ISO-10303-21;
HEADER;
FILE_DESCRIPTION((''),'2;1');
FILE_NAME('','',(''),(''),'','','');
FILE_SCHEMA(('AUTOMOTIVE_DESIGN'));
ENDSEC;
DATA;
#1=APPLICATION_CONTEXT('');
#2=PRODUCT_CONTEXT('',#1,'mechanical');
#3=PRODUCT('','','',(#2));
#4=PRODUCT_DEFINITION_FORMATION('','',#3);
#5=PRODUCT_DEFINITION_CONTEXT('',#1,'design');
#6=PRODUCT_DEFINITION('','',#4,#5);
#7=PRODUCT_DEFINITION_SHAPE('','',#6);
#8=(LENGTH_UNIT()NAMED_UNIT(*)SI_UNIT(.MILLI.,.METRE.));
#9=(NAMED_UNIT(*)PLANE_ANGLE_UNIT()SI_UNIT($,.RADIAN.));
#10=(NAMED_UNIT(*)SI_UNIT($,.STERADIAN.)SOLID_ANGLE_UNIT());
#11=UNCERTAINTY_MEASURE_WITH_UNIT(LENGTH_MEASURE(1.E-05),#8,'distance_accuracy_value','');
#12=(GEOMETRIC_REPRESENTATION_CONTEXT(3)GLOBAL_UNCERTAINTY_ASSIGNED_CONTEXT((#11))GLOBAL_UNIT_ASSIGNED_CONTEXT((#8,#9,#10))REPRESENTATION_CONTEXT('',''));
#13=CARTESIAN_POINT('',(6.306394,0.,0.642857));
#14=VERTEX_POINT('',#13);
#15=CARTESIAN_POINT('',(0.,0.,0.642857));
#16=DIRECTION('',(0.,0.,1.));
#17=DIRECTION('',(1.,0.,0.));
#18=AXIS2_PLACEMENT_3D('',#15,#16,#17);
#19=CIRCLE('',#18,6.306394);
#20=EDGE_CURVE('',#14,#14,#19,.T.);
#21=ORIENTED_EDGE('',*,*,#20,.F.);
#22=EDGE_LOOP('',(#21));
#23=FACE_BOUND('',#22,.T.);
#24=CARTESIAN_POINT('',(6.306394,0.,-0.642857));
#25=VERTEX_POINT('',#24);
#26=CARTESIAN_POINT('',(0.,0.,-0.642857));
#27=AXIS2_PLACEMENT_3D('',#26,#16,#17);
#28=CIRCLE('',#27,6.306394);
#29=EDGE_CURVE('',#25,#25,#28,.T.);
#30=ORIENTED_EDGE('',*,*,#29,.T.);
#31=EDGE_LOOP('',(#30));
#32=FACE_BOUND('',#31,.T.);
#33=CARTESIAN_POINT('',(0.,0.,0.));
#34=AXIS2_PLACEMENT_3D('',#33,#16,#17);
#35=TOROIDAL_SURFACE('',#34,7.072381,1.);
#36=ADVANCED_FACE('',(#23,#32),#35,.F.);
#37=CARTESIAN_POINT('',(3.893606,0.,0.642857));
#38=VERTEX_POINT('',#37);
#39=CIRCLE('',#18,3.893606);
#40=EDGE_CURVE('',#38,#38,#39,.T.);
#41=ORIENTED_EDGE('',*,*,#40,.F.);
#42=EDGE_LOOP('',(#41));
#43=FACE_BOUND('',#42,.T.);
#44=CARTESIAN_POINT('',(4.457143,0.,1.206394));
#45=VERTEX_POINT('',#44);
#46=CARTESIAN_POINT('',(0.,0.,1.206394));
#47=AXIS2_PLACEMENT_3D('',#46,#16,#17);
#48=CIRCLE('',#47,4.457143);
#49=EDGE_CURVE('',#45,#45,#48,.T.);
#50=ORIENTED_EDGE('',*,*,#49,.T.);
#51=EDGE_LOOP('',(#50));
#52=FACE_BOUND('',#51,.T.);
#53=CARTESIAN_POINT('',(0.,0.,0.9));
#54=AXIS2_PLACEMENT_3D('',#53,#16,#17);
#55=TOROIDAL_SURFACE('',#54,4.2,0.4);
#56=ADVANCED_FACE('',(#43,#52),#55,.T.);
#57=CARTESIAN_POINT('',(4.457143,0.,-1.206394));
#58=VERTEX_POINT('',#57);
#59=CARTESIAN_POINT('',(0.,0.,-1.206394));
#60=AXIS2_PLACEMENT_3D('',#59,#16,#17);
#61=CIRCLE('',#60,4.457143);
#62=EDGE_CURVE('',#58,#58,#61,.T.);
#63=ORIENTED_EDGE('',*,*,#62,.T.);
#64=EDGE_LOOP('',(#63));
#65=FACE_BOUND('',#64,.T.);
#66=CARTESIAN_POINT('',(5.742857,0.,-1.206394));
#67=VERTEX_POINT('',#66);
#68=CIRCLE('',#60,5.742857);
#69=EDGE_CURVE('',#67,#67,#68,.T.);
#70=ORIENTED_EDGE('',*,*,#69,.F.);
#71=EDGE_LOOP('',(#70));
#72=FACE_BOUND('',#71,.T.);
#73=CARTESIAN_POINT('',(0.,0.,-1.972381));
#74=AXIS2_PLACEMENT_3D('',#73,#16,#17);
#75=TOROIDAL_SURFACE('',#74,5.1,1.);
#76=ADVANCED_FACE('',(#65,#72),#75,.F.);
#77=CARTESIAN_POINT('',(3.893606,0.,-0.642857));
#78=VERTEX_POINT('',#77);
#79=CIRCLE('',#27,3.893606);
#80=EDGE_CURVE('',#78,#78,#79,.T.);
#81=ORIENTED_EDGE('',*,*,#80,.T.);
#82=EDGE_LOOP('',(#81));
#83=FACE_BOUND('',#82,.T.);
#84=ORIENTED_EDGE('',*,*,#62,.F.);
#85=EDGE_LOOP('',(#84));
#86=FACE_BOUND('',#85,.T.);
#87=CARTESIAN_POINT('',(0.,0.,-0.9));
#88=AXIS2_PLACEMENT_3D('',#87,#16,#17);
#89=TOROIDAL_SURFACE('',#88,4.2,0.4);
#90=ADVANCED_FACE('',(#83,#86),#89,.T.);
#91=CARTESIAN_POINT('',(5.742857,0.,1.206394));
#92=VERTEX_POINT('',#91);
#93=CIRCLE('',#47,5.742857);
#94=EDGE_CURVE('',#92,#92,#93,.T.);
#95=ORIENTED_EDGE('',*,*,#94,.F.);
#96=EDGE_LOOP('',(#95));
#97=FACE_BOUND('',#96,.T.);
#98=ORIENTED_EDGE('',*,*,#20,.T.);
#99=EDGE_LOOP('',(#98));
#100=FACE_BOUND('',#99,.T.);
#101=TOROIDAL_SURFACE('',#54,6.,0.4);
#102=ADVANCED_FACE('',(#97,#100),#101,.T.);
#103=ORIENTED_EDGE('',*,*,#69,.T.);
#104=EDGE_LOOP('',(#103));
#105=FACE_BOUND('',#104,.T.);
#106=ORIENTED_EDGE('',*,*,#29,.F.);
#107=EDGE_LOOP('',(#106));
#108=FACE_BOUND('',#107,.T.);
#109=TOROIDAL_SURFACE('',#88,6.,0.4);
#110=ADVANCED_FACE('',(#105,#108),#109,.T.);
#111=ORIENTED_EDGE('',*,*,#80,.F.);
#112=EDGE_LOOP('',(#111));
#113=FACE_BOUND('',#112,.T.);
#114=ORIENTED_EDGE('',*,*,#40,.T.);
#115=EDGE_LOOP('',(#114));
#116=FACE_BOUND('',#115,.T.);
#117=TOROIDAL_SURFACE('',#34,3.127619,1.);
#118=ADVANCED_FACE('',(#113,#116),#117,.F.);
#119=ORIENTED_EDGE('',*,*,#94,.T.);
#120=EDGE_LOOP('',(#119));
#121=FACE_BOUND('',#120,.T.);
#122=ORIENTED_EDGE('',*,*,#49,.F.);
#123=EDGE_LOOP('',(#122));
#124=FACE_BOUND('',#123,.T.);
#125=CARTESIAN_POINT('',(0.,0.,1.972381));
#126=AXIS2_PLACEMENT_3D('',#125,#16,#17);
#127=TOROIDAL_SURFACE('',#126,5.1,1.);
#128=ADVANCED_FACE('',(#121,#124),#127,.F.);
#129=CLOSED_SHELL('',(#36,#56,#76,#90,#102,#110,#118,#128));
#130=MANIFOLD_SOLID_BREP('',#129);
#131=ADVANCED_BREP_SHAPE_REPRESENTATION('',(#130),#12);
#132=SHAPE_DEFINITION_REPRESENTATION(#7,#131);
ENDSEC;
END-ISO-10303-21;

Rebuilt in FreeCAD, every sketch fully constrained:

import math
import FreeCAD as App
import Part
import Sketcher

doc = App.newDocument("Part")
body = doc.addObject("PartDesign::Body", "Body")

sketch1 = doc.addObject("Sketcher::SketchObject", "Sketch")
body.addObject(sketch1)
sketch1.AttachmentSupport = (doc.YZ_Plane, [""])
sketch1.MapMode = "FlatFace"
sketch1.addGeometry([
    Part.ArcOfCircle(Part.Circle(App.Vector(7.07, 0, 0), App.Vector(0, 0, 1), 1), math.radians(140), math.radians(220)),
    Part.ArcOfCircle(Part.Circle(App.Vector(6, 0.9, 0), App.Vector(0, 0, 1), 0.4), math.radians(-40), math.radians(130)),
    Part.ArcOfCircle(Part.Circle(App.Vector(5.1, 1.97, 0), App.Vector(0, 0, 1), 1), math.radians(-130), math.radians(-50)),
    Part.ArcOfCircle(Part.Circle(App.Vector(4.2, 0.9, 0), App.Vector(0, 0, 1), 0.4), math.radians(50), math.radians(220)),
    Part.ArcOfCircle(Part.Circle(App.Vector(3.13, 0, 0), App.Vector(0, 0, 1), 1), math.radians(-40), math.radians(40)),
    Part.ArcOfCircle(Part.Circle(App.Vector(4.2, -0.9, 0), App.Vector(0, 0, 1), 0.4), math.radians(140), math.radians(310)),
    Part.ArcOfCircle(Part.Circle(App.Vector(5.1, -1.97, 0), App.Vector(0, 0, 1), 1), math.radians(50), math.radians(130)),
    Part.ArcOfCircle(Part.Circle(App.Vector(6, -0.9, 0), App.Vector(0, 0, 1), 0.4), math.radians(-130), math.radians(40)),
], False)
sketch1.addConstraint([
    Sketcher.Constraint("Tangent", 0, 1, 1, 1),
    Sketcher.Constraint("Tangent", 1, 2, 2, 2),
    Sketcher.Constraint("Tangent", 2, 1, 3, 1),
    Sketcher.Constraint("Tangent", 3, 2, 4, 2),
    Sketcher.Constraint("Tangent", 4, 1, 5, 1),
    Sketcher.Constraint("Tangent", 5, 2, 6, 2),
    Sketcher.Constraint("Tangent", 6, 1, 7, 1),
    Sketcher.Constraint("Tangent", 7, 2, 0, 2),
    Sketcher.Constraint("Equal", 0, 2),
    Sketcher.Constraint("Equal", 1, 3),
    Sketcher.Constraint("Equal", 2, 4),
    Sketcher.Constraint("Equal", 3, 5),
    Sketcher.Constraint("Equal", 4, 6),
    Sketcher.Constraint("Equal", 5, 7),
    Sketcher.Constraint("Symmetric", 3, 3, 5, 3, -1),
    Sketcher.Constraint("Symmetric", 1, 3, 7, 3, -1),
    Sketcher.Constraint("Horizontal", 1, 3, 3, 3),
    Sketcher.Constraint("Radius", 0, 1.0),
    Sketcher.Constraint("Radius", 1, 0.4),
    Sketcher.Constraint("DistanceX", -1, 1, 1, 3, 6.0),
    Sketcher.Constraint("DistanceY", -1, 1, 1, 3, 0.9),
    Sketcher.Constraint("DistanceX", -1, 1, 2, 3, 5.1),
])
revolution = doc.addObject("PartDesign::Revolution", "Revolution")
body.addObject(revolution)
revolution.Profile = sketch1
revolution.ReferenceAxis = (sketch1, ["V_Axis"])
revolution.Angle = 360

doc.recompute()
